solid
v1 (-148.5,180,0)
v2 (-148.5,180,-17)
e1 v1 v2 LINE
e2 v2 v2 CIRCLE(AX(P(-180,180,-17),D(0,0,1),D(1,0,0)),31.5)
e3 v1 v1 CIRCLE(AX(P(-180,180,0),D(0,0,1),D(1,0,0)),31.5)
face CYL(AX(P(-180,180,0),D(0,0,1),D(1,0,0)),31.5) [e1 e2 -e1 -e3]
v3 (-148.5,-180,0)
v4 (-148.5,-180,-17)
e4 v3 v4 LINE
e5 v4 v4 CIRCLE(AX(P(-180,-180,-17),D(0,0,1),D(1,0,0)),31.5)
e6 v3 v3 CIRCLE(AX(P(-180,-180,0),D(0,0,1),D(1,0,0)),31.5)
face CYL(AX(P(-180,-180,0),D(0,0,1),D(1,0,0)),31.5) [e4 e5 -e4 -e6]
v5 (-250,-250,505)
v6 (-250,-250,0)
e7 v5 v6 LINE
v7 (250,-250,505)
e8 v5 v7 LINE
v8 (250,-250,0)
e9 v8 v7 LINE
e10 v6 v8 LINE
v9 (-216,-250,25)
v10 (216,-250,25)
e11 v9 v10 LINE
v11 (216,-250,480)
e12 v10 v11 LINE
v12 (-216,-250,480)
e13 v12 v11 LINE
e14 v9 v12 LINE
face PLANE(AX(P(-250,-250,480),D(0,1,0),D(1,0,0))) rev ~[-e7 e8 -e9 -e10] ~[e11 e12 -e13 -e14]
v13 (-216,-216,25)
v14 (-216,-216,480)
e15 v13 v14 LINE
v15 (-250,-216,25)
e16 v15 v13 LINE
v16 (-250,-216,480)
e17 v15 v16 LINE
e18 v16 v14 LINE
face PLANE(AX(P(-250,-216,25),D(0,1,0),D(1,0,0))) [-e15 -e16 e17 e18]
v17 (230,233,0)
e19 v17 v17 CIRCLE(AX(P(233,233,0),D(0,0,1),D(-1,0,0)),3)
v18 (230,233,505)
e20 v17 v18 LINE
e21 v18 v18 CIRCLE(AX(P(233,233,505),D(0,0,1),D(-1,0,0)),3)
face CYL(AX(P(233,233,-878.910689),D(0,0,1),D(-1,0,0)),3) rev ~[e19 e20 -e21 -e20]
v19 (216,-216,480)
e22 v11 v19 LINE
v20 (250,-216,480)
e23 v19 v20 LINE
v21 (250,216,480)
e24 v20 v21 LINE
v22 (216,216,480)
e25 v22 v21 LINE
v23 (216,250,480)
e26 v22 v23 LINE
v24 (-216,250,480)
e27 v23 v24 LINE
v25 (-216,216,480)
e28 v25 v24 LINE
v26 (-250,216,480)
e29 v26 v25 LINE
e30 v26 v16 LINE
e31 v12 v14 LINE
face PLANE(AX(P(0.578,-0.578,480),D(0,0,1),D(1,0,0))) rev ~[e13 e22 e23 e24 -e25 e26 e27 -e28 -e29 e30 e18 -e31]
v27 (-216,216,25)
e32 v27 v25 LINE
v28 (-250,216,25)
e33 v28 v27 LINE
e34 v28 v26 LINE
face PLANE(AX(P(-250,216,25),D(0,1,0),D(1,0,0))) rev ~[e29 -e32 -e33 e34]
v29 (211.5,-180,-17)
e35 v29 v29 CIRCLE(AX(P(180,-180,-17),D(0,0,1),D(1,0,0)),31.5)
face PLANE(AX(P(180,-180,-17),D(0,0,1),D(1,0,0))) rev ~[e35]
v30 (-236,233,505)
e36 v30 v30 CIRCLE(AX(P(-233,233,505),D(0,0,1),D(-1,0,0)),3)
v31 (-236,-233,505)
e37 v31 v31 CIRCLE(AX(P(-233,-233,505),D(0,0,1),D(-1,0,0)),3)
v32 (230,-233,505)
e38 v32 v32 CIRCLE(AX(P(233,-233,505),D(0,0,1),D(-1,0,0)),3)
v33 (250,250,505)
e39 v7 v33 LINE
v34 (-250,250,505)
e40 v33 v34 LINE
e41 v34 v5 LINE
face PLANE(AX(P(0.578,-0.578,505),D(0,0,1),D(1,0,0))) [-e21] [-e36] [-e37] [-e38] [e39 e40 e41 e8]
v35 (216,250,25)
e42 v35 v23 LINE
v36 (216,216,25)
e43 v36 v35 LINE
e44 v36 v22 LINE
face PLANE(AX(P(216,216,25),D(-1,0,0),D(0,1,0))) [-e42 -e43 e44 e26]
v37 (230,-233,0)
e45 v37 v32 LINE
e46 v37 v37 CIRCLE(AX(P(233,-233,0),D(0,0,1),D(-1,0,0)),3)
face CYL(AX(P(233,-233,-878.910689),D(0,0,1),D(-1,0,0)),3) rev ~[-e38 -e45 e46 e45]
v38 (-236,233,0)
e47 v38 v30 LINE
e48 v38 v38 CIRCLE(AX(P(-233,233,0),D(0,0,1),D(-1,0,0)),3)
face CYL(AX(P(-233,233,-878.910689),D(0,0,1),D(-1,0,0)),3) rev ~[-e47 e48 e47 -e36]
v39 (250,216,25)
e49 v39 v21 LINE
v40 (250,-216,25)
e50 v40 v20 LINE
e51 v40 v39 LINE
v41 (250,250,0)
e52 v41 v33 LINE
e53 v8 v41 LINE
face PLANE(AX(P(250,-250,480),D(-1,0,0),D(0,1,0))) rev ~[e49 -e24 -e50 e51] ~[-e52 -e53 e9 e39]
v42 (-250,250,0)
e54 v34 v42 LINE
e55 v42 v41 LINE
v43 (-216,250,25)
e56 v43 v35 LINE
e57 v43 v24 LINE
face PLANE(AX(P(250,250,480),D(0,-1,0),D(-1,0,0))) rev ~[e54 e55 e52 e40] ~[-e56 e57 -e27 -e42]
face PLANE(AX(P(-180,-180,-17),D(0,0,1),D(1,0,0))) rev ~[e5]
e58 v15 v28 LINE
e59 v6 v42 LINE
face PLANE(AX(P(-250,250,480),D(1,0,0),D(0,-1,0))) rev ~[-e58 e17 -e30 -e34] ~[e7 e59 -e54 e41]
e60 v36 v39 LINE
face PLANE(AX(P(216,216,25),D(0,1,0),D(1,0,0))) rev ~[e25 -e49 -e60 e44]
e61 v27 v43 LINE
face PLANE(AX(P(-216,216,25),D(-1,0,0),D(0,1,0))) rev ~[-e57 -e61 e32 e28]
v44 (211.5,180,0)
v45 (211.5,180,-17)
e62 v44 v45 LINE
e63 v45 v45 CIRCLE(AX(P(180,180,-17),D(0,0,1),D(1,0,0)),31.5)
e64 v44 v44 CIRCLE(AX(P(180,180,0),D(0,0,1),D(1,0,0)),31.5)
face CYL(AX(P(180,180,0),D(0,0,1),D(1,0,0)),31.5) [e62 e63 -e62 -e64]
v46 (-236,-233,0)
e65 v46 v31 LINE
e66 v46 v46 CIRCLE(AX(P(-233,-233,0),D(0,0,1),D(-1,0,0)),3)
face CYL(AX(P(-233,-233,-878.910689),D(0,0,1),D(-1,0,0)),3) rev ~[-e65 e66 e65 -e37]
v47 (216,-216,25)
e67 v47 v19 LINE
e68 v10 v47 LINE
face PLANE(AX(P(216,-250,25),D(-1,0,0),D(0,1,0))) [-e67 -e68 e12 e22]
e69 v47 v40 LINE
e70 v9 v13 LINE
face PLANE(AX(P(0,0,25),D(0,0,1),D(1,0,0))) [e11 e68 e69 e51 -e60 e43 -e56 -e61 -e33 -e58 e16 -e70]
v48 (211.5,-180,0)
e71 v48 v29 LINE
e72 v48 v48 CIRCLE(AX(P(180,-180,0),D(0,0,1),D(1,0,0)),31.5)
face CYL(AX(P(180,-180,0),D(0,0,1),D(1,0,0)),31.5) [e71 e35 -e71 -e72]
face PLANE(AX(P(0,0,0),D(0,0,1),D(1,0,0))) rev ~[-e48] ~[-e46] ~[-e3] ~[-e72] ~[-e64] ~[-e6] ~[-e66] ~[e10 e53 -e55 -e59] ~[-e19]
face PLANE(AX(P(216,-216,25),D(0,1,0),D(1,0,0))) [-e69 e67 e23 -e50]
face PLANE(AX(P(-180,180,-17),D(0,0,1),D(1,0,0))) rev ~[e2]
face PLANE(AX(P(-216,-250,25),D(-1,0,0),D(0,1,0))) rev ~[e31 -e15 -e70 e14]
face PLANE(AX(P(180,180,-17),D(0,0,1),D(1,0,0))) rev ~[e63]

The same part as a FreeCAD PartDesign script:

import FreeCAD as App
import Part
import Sketcher
Q = App.Units.Quantity

doc = App.newDocument("Part")
body = doc.addObject("PartDesign::Body", "Body")

sketch1 = body.newObject("Sketcher::SketchObject", "Sketch")
sketch1.AttachmentSupport = (doc.getObject("XY_Plane"), [""])
sketch1.MapMode = "FlatFace"
sketch1.addGeometry(Part.LineSegment(App.Vector(-250, 250, 0), App.Vector(-250, -250, 0)), False)
sketch1.addGeometry(Part.LineSegment(App.Vector(-250, -250, 0), App.Vector(250, -250, 0)), False)
sketch1.addGeometry(Part.LineSegment(App.Vector(250, -250, 0), App.Vector(250, 250, 0)), False)
sketch1.addGeometry(Part.LineSegment(App.Vector(250, 250, 0), App.Vector(-250, 250, 0)), False)
sketch1.addConstraint(Sketcher.Constraint("Coincident", 0, 2, 1, 1))
sketch1.addConstraint(Sketcher.Constraint("Coincident", 1, 2, 2, 1))
sketch1.addConstraint(Sketcher.Constraint("Coincident", 2, 2, 3, 1))
sketch1.addConstraint(Sketcher.Constraint("Coincident", 3, 2, 0, 1))
sketch1.addConstraint(Sketcher.Constraint("Vertical", 0))
sketch1.addConstraint(Sketcher.Constraint("Horizontal", 1))
sketch1.addConstraint(Sketcher.Constraint("Vertical", 2))
sketch1.addConstraint(Sketcher.Constraint("Horizontal", 3))
sketch1.addConstraint(Sketcher.Constraint("Symmetric", 0, 2, 2, 2, -1, 1))
sketch1.addConstraint(Sketcher.Constraint("Equal", 3, 0))
sketch1.addConstraint(Sketcher.Constraint("DistanceX", 1, 1, 1, 2, Q("500 mm")))
pad1 = body.newObject("PartDesign::Pad", "Pad")
pad1.Profile = sketch1
pad1.Length = 25

sketch2 = body.newObject("Sketcher::SketchObject", "Sketch001")
sketch2.AttachmentSupport = (doc.getObject("XY_Plane"), [""])
sketch2.MapMode = "FlatFace"
sketch2.AttachmentOffset = App.Placement(App.Vector(0, 0, 25), App.Rotation())
sketch2.addGeometry(Part.LineSegment(App.Vector(-250, 250, 0), App.Vector(-250, 216, 0)), False)
sketch2.addGeometry(Part.LineSegment(App.Vector(-250, 216, 0), App.Vector(-216, 216, 0)), False)
sketch2.addGeometry(Part.LineSegment(App.Vector(-216, 216, 0), App.Vector(-216, 250, 0)), False)
sketch2.addGeometry(Part.LineSegment(App.Vector(-216, 250, 0), App.Vector(-250, 250, 0)), False)
sketch2.addGeometry(Part.LineSegment(App.Vector(216, 250, 0), App.Vector(216, 216, 0)), False)
sketch2.addGeometry(Part.LineSegment(App.Vector(216, 216, 0), App.Vector(250, 216, 0)), False)
sketch2.addGeometry(Part.LineSegment(App.Vector(250, 216, 0), App.Vector(250, 250, 0)), False)
sketch2.addGeometry(Part.LineSegment(App.Vector(250, 250, 0), App.Vector(216, 250, 0)), False)
sketch2.addGeometry(Part.LineSegment(App.Vector(216, -216, 0), App.Vector(216, -250, 0)), False)
sketch2.addGeometry(Part.LineSegment(App.Vector(216, -250, 0), App.Vector(250, -250, 0)), False)
sketch2.addGeometry(Part.LineSegment(App.Vector(250, -250, 0), App.Vector(250, -216, 0)), False)
sketch2.addGeometry(Part.LineSegment(App.Vector(250, -216, 0), App.Vector(216, -216, 0)), False)
sketch2.addGeometry(Part.LineSegment(App.Vector(-250, -216, 0), App.Vector(-250, -250, 0)), False)
sketch2.addGeometry(Part.LineSegment(App.Vector(-250, -250, 0), App.Vector(-216, -250, 0)), False)
sketch2.addGeometry(Part.LineSegment(App.Vector(-216, -250, 0), App.Vector(-216, -216, 0)), False)
sketch2.addGeometry(Part.LineSegment(App.Vector(-216, -216, 0), App.Vector(-250, -216, 0)), False)
sketch2.addConstraint(Sketcher.Constraint("Coincident", 0, 2, 1, 1))
sketch2.addConstraint(Sketcher.Constraint("Coincident", 1, 2, 2, 1))
sketch2.addConstraint(Sketcher.Constraint("Coincident", 2, 2, 3, 1))
sketch2.addConstraint(Sketcher.Constraint("Coincident", 3, 2, 0, 1))
sketch2.addConstraint(Sketcher.Constraint("Coincident", 4, 2, 5, 1))
sketch2.addConstraint(Sketcher.Constraint("Coincident", 5, 2, 6, 1))
sketch2.addConstraint(Sketcher.Constraint("Coincident", 6, 2, 7, 1))
sketch2.addConstraint(Sketcher.Constraint("Coincident", 7, 2, 4, 1))
sketch2.addConstraint(Sketcher.Constraint("Coincident", 8, 2, 9, 1))
sketch2.addConstraint(Sketcher.Constraint("Coincident", 9, 2, 10, 1))
sketch2.addConstraint(Sketcher.Constraint("Coincident", 10, 2, 11, 1))
sketch2.addConstraint(Sketcher.Constraint("Coincident", 11, 2, 8, 1))
sketch2.addConstraint(Sketcher.Constraint("Coincident", 12, 2, 13, 1))
sketch2.addConstraint(Sketcher.Constraint("Coincident", 13, 2, 14, 1))
sketch2.addConstraint(Sketcher.Constraint("Coincident", 14, 2, 15, 1))
sketch2.addConstraint(Sketcher.Constraint("Coincident", 15, 2, 12, 1))
sketch2.addConstraint(Sketcher.Constraint("Vertical", 0))
sketch2.addConstraint(Sketcher.Constraint("Horizontal", 1))
sketch2.addConstraint(Sketcher.Constraint("Vertical", 2))
sketch2.addConstraint(Sketcher.Constraint("Horizontal", 3))
sketch2.addConstraint(Sketcher.Constraint("Vertical", 4))
sketch2.addConstraint(Sketcher.Constraint("Horizontal", 5))
sketch2.addConstraint(Sketcher.Constraint("Vertical", 6))
sketch2.addConstraint(Sketcher.Constraint("Horizontal", 7))
sketch2.addConstraint(Sketcher.Constraint("Vertical", 8))
sketch2.addConstraint(Sketcher.Constraint("Horizontal", 9))
sketch2.addConstraint(Sketcher.Constraint("Vertical", 10))
sketch2.addConstraint(Sketcher.Constraint("Horizontal", 11))
sketch2.addConstraint(Sketcher.Constraint("Vertical", 12))
sketch2.addConstraint(Sketcher.Constraint("Horizontal", 13))
sketch2.addConstraint(Sketcher.Constraint("Vertical", 14))
sketch2.addConstraint(Sketcher.Constraint("Horizontal", 15))
sketch2.addConstraint(Sketcher.Constraint("Symmetric", 2, 2, 8, 2, -1, 1))
sketch2.addConstraint(Sketcher.Constraint("Symmetric", 0, 2, 10, 2, -1, 1))
sketch2.addConstraint(Sketcher.Constraint("Symmetric", 6, 2, 12, 2, -1, 1))
sketch2.addConstraint(Sketcher.Constraint("Symmetric", 4, 2, 14, 2, -1, 1))
sketch2.addConstraint(Sketcher.Constraint("Symmetric", 1, 2, 4, 2, -2))
sketch2.addConstraint(Sketcher.Constraint("Symmetric", 3, 2, 6, 2, -2))
sketch2.addConstraint(Sketcher.Constraint("Equal", 15, 0))
sketch2.addConstraint(Sketcher.Constraint("DistanceX", 1, 1, 1, 2, Q("34 mm")))
sketch2.addConstraint(Sketcher.Constraint("DistanceX", 0, 2, -1, 1, Q("250 mm")))
sketch2.addConstraint(Sketcher.Constraint("DistanceY", -1, 1, 0, 2, Q("216 mm")))
pad2 = body.newObject("PartDesign::Pad", "Pad001")
pad2.Profile = sketch2
pad2.Length = 455

sketch3 = body.newObject("Sketcher::SketchObject", "Sketch002")
sketch3.AttachmentSupport = (doc.getObject("XY_Plane"), [""])
sketch3.MapMode = "FlatFace"
sketch3.AttachmentOffset = App.Placement(App.Vector(0, 0, 480), App.Rotation())
sketch3.addGeometry(Part.LineSegment(App.Vector(-250, -250, 0), App.Vector(250, -250, 0)), False)
sketch3.addGeometry(Part.LineSegment(App.Vector(250, -250, 0), App.Vector(250, 250, 0)), False)
sketch3.addGeometry(Part.LineSegment(App.Vector(250, 250, 0), App.Vector(-250, 250, 0)), False)
sketch3.addGeometry(Part.LineSegment(App.Vector(-250, 250, 0), App.Vector(-250, -250, 0)), False)
sketch3.addConstraint(Sketcher.Constraint("Coincident", 0, 2, 1, 1))
sketch3.addConstraint(Sketcher.Constraint("Coincident", 1, 2, 2, 1))
sketch3.addConstraint(Sketcher.Constraint("Coincident", 2, 2, 3, 1))
sketch3.addConstraint(Sketcher.Constraint("Coincident", 3, 2, 0, 1))
sketch3.addConstraint(Sketcher.Constraint("Horizontal", 0))
sketch3.addConstraint(Sketcher.Constraint("Vertical", 1))
sketch3.addConstraint(Sketcher.Constraint("Horizontal", 2))
sketch3.addConstraint(Sketcher.Constraint("Vertical", 3))
sketch3.addConstraint(Sketcher.Constraint("Symmetric", 0, 2, 2, 2, -1, 1))
sketch3.addConstraint(Sketcher.Constraint("Equal", 2, 1))
sketch3.addConstraint(Sketcher.Constraint("DistanceX", 0, 1, 0, 2, Q("500 mm")))
pad3 = body.newObject("PartDesign::Pad", "Pad002")
pad3.Profile = sketch3
pad3.Length = 25

sketch4 = body.newObject("Sketcher::SketchObject", "Sketch003")
sketch4.AttachmentSupport = (doc.getObject("XY_Plane"), [""])
sketch4.MapMode = "FlatFace"
sketch4.addGeometry(Part.Circle(App.Vector(-180, -180, 0), App.Vector(0, 0, 1), 32), False)
sketch4.addGeometry(Part.Circle(App.Vector(-180, 180, 0), App.Vector(0, 0, 1), 32), False)
sketch4.addGeometry(Part.Circle(App.Vector(180, 180, 0), App.Vector(0, 0, 1), 32), False)
sketch4.addGeometry(Part.Circle(App.Vector(180, -180, 0), App.Vector(0, 0, 1), 32), False)
sketch4.addConstraint(Sketcher.Constraint("Equal", 0, 1))
sketch4.addConstraint(Sketcher.Constraint("Equal", 1, 2))
sketch4.addConstraint(Sketcher.Constraint("Equal", 2, 3))
sketch4.addConstraint(Sketcher.Constraint("Symmetric", 0, 3, 2, 3, -1, 1))
sketch4.addConstraint(Sketcher.Constraint("Symmetric", 1, 3, 3, 3, -1, 1))
sketch4.addConstraint(Sketcher.Constraint("Symmetric", 1, 3, 2, 3, -2))
sketch4.addConstraint(Sketcher.Constraint("Diameter", 0, Q("63 mm")))
sketch4.addConstraint(Sketcher.Constraint("DistanceX", 0, 3, -1, 1, Q("180 mm")))
sketch4.addConstraint(Sketcher.Constraint("DistanceY", 0, 3, -1, 1, Q("180 mm")))
pad4 = body.newObject("PartDesign::Pad", "Pad003")
pad4.Profile = sketch4
pad4.Length = 17
pad4.Reversed = True

sketch5 = body.newObject("Sketcher::SketchObject", "Sketch004")
sketch5.AttachmentSupport = (doc.getObject("XY_Plane"), [""])
sketch5.MapMode = "FlatFace"
sketch5.addGeometry(Part.Circle(App.Vector(-233, 233, 0), App.Vector(0, 0, 1), 3), False)
sketch5.addGeometry(Part.Circle(App.Vector(233, 233, 0), App.Vector(0, 0, 1), 3), False)
sketch5.addGeometry(Part.Circle(App.Vector(233, -233, 0), App.Vector(0, 0, 1), 3), False)
sketch5.addGeometry(Part.Circle(App.Vector(-233, -233, 0), App.Vector(0, 0, 1), 3), False)
sketch5.addConstraint(Sketcher.Constraint("Equal", 0, 1))
sketch5.addConstraint(Sketcher.Constraint("Equal", 1, 2))
sketch5.addConstraint(Sketcher.Constraint("Equal", 2, 3))
sketch5.addConstraint(Sketcher.Constraint("Symmetric", 0, 3, 2, 3, -1, 1))
sketch5.addConstraint(Sketcher.Constraint("Symmetric", 1, 3, 3, 3, -1, 1))
sketch5.addConstraint(Sketcher.Constraint("Symmetric", 0, 3, 1, 3, -2))
sketch5.addConstraint(Sketcher.Constraint("Diameter", 0, Q("6 mm")))
sketch5.addConstraint(Sketcher.Constraint("DistanceX", 0, 3, -1, 1, Q("233 mm")))
sketch5.addConstraint(Sketcher.Constraint("DistanceY", -1, 1, 0, 3, Q("233 mm")))
doc.recompute()
hole = body.newObject("PartDesign::Hole", "Hole")
hole.Profile = sketch5
hole.ThreadType = "None"
hole.Diameter = 6
hole.DepthType = "ThroughAll"
hole.Reversed = True

doc.recompute()
